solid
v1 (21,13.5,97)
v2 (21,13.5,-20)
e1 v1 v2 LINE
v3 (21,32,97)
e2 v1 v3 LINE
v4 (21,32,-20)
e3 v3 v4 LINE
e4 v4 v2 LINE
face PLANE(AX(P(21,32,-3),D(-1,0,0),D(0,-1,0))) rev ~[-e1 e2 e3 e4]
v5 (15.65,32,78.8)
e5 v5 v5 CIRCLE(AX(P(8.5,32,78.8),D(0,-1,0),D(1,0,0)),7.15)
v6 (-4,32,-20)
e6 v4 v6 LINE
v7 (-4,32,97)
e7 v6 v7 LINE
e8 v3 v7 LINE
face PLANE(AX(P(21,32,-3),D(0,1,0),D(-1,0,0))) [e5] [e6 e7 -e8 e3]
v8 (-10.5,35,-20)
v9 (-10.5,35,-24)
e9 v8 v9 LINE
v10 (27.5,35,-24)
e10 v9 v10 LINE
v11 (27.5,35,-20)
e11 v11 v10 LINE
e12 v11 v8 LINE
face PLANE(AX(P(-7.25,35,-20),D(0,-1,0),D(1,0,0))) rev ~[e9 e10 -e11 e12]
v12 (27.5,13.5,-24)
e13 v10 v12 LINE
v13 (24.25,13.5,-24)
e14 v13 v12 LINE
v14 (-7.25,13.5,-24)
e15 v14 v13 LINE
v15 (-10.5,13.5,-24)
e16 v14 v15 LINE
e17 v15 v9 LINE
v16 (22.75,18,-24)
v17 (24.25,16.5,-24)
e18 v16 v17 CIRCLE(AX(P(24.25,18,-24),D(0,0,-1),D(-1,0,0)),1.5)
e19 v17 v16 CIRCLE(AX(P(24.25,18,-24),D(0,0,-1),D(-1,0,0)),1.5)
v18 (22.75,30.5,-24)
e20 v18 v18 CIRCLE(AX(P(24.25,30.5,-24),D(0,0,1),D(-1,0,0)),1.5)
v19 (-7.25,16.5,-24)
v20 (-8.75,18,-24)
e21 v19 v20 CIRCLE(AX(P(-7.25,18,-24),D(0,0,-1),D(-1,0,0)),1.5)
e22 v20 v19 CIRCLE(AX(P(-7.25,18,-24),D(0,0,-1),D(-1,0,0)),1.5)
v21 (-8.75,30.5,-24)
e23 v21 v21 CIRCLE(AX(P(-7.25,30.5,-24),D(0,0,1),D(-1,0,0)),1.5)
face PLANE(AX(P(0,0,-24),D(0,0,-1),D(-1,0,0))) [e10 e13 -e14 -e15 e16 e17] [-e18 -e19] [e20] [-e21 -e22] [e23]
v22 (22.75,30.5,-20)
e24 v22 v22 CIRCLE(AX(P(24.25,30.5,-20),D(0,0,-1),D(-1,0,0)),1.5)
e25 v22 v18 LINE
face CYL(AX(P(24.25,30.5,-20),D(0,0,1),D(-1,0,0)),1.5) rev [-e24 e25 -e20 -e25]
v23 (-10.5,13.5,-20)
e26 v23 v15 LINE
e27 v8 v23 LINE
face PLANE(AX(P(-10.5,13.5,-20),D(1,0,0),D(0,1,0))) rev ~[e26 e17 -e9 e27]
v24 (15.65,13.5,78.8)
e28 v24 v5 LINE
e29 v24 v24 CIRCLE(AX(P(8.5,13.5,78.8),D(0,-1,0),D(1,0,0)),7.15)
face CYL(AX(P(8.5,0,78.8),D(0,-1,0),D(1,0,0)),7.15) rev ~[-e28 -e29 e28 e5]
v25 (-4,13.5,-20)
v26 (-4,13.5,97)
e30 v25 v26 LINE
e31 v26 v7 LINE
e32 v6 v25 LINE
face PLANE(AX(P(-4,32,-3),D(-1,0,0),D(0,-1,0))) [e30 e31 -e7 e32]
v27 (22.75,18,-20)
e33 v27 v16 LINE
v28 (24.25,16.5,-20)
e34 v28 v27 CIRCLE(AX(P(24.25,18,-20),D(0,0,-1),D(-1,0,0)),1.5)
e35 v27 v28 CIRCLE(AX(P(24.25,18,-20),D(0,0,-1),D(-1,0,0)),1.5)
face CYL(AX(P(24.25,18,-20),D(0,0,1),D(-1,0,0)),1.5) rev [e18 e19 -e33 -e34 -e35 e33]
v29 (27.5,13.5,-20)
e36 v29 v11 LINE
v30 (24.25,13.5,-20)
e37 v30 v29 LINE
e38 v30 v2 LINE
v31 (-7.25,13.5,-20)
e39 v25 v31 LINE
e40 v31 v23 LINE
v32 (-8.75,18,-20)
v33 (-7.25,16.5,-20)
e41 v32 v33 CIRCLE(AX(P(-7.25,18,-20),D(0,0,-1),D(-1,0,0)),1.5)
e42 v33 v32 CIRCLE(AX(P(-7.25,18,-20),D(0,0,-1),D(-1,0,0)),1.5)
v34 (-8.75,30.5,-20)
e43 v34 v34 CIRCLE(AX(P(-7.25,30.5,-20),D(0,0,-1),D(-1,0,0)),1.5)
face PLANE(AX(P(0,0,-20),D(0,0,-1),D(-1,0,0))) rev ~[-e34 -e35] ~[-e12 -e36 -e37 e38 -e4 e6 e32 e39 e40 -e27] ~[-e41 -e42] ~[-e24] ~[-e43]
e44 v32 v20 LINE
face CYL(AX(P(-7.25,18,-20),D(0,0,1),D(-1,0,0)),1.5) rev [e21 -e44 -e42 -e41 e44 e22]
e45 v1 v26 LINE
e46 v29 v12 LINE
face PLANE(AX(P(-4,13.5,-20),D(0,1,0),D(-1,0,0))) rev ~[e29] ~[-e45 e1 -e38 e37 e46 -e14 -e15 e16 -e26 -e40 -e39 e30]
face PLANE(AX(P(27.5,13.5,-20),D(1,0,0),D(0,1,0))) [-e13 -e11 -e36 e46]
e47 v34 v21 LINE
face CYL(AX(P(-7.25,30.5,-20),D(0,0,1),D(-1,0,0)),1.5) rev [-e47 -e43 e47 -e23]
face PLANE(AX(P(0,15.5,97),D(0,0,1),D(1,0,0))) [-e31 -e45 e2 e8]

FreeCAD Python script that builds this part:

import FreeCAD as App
import Part
import Sketcher
Q = App.Units.Quantity

doc = App.newDocument("Part")
body = doc.addObject("PartDesign::Body", "Body")

# Sketch on XY plane
sketch1 = doc.addObject("Sketcher::SketchObject", "Sketch")
body.addObject(sketch1)
sketch1.AttachmentSupport = (doc.XY_Plane, [""])
sketch1.MapMode = "FlatFace"
sketch1.addGeometry([
    Part.LineSegment(App.Vector(23, 36, 0), App.Vector(-6, 36, 0)),
    Part.LineSegment(App.Vector(-6, 36, 0), App.Vector(-6, -6, 0)),
    Part.LineSegment(App.Vector(-6, -6, 0), App.Vector(23, -6, 0)),
    Part.LineSegment(App.Vector(23, -6, 0), App.Vector(23, 36, 0)),
], False)
sketch1.addConstraint([
    Sketcher.Constraint("Coincident", 0, 2, 1, 1),
    Sketcher.Constraint("Coincident", 1, 2, 2, 1),
    Sketcher.Constraint("Coincident", 2, 2, 3, 1),
    Sketcher.Constraint("Coincident", 3, 2, 0, 1),
    Sketcher.Constraint("Horizontal", 0),
    Sketcher.Constraint("Vertical", 1),
    Sketcher.Constraint("Horizontal", 2),
    Sketcher.Constraint("Vertical", 3),
    Sketcher.Constraint("DistanceX", 0, 2, -1, 1, Q("6 mm")),
    Sketcher.Constraint("DistanceY", 1, 2, -1, 1, Q("6 mm")),
    Sketcher.Constraint("DistanceX", 0, 2, 0, 1, Q("29 mm")),
    Sketcher.Constraint("DistanceY", 1, 2, 1, 1, Q("42 mm")),
])
pad1 = doc.addObject("PartDesign::Pad", "Pad")
body.addObject(pad1)
pad1.Profile = sketch1
pad1.Length = 3
pad1.Reversed = True

# Sketch on XY plane
sketch2 = doc.addObject("Sketcher::SketchObject", "Sketch001")
body.addObject(sketch2)
sketch2.AttachmentSupport = (doc.XY_Plane, [""])
sketch2.MapMode = "FlatFace"
sketch2.addGeometry([
    Part.LineSegment(App.Vector(0, 30, 0), App.Vector(0, 0, 0)),
    Part.LineSegment(App.Vector(0, 0, 0), App.Vector(17, 0, 0)),
    Part.LineSegment(App.Vector(17, 0, 0), App.Vector(17, 30, 0)),
    Part.LineSegment(App.Vector(17, 30, 0), App.Vector(0, 30, 0)),
], False)
sketch2.addConstraint([
    Sketcher.Constraint("Coincident", 0, 2, 1, 1),
    Sketcher.Constraint("Coincident", 1, 2, 2, 1),
    Sketcher.Constraint("Coincident", 2, 2, 3, 1),
    Sketcher.Constraint("Coincident", 3, 2, 0, 1),
    Sketcher.Constraint("Vertical", 0),
    Sketcher.Constraint("Horizontal", 1),
    Sketcher.Constraint("Vertical", 2),
    Sketcher.Constraint("Horizontal", 3),
    Sketcher.Constraint("Coincident", 0, 2, -1, 1),
    Sketcher.Constraint("DistanceX", 1, 1, 1, 2, Q("17 mm")),
    Sketcher.Constraint("DistanceY", 0, 2, 0, 1, Q("30 mm")),
])
pad2 = doc.addObject("PartDesign::Pad", "Pad001")
body.addObject(pad2)
pad2.Profile = sketch2
pad2.Length = 90

# Sketch on XZ plane
sketch3 = doc.addObject("Sketcher::SketchObject", "Sketch002")
body.addObject(sketch3)
sketch3.AttachmentSupport = (doc.XZ_Plane, [""])
sketch3.MapMode = "FlatFace"
sketch3.addGeometry(Part.Circle(App.Vector(8.5, 78.8, 0), App.Vector(0, 0, 1), 7.15), False)
sketch3.addConstraint([
    Sketcher.Constraint("Diameter", 0, Q("14.3 mm")),
    Sketcher.Constraint("DistanceX", -1, 1, 0, 3, Q("8.5 mm")),
    Sketcher.Constraint("DistanceY", -1, 1, 0, 3, Q("78.8 mm")),
])
pocket1 = doc.addObject("PartDesign::Pocket", "Pocket")
body.addObject(pocket1)
pocket1.Profile = sketch3
pocket1.Length = 90

# Sketch on XZ plane
sketch4 = doc.addObject("Sketcher::SketchObject", "Sketch003")
body.addObject(sketch4)
sketch4.AttachmentSupport = (doc.XZ_Plane, [""])
sketch4.MapMode = "FlatFace"
sketch4.addGeometry([
    Part.LineSegment(App.Vector(0, 90, 0), App.Vector(0, 42, 0)),  # 0
    Part.LineSegment(App.Vector(0, 42, 0), App.Vector(17, 42, 0)),  # 1
    Part.LineSegment(App.Vector(17, 42, 0), App.Vector(17, 90, 0)),  # 2
    Part.LineSegment(App.Vector(17, 90, 0), App.Vector(0, 90, 0)),  # 3
    Part.Circle(App.Vector(8.5, 78.8, 0), App.Vector(0, 0, 1), 7.15),  # 4
], False)
sketch4.addConstraint([
    Sketcher.Constraint("Coincident", 0, 2, 1, 1),
    Sketcher.Constraint("Coincident", 1, 2, 2, 1),
    Sketcher.Constraint("Coincident", 2, 2, 3, 1),
    Sketcher.Constraint("Coincident", 3, 2, 0, 1),
    Sketcher.Constraint("Vertical", 0),
    Sketcher.Constraint("Horizontal", 1),
    Sketcher.Constraint("Vertical", 2),
    Sketcher.Constraint("Horizontal", 3),
    Sketcher.Constraint("PointOnObject", 0, 2, -2),
    Sketcher.Constraint("Diameter", 4, Q("14.3 mm")),
    Sketcher.Constraint("DistanceX", 1, 1, 1, 2, Q("17 mm")),
    Sketcher.Constraint("DistanceY", 0, 2, 0, 1, Q("48 mm")),
    Sketcher.Constraint("DistanceY", -1, 1, 0, 2, Q("42 mm")),
    Sketcher.Constraint("DistanceX", -1, 1, 4, 3, Q("8.5 mm")),
    Sketcher.Constraint("DistanceY", -1, 1, 4, 3, Q("78.8 mm")),
])
pocket2 = doc.addObject("PartDesign::Pocket", "Pocket001")
body.addObject(pocket2)
pocket2.Profile = sketch4
pocket2.Length = 15.5

# Sketch on XZ plane
sketch5 = doc.addObject("Sketcher::SketchObject", "Sketch004")
body.addObject(sketch5)
sketch5.AttachmentSupport = (doc.XZ_Plane, [""])
sketch5.MapMode = "FlatFace"
sketch5.addGeometry([
    Part.LineSegment(App.Vector(0, 97, 0), App.Vector(0, 90, 0)),
    Part.LineSegment(App.Vector(0, 90, 0), App.Vector(17, 90, 0)),
    Part.LineSegment(App.Vector(17, 90, 0), App.Vector(17, 97, 0)),
    Part.LineSegment(App.Vector(17, 97, 0), App.Vector(0, 97, 0)),
], False)
sketch5.addConstraint([
    Sketcher.Constraint("Coincident", 0, 2, 1, 1),
    Sketcher.Constraint("Coincident", 1, 2, 2, 1),
    Sketcher.Constraint("Coincident", 2, 2, 3, 1),
    Sketcher.Constraint("Coincident", 3, 2, 0, 1),
    Sketcher.Constraint("Vertical", 0),
    Sketcher.Constraint("Horizontal", 1),
    Sketcher.Constraint("Vertical", 2),
    Sketcher.Constraint("Horizontal", 3),
    Sketcher.Constraint("PointOnObject", 0, 2, -2),
    Sketcher.Constraint("DistanceY", 0, 2, 0, 1, Q("7 mm")),
    Sketcher.Constraint("DistanceX", 1, 1, 1, 2, Q("17 mm")),
    Sketcher.Constraint("DistanceY", -1, 1, 0, 2, Q("90 mm")),
])
pad3 = doc.addObject("PartDesign::Pad", "Pad002")
body.addObject(pad3)
pad3.Profile = sketch5
pad3.Length = 30
pad3.Reversed = True

# Sketch on XZ plane
sketch6 = doc.addObject("Sketcher::SketchObject", "Sketch005")
body.addObject(sketch6)
sketch6.AttachmentSupport = (doc.XZ_Plane, [""])
sketch6.MapMode = "FlatFace"
sketch6.addGeometry([
    Part.LineSegment(App.Vector(0, 97, 0), App.Vector(0, 90, 0)),
    Part.LineSegment(App.Vector(0, 90, 0), App.Vector(17, 90, 0)),
    Part.LineSegment(App.Vector(17, 90, 0), App.Vector(17, 97, 0)),
    Part.LineSegment(App.Vector(17, 97, 0), App.Vector(0, 97, 0)),
], False)
sketch6.addConstraint([
    Sketcher.Constraint("Coincident", 0, 2, 1, 1),
    Sketcher.Constraint("Coincident", 1, 2, 2, 1),
    Sketcher.Constraint("Coincident", 2, 2, 3, 1),
    Sketcher.Constraint("Coincident", 3, 2, 0, 1),
    Sketcher.Constraint("Vertical", 0),
    Sketcher.Constraint("Horizontal", 1),
    Sketcher.Constraint("Vertical", 2),
    Sketcher.Constraint("Horizontal", 3),
    Sketcher.Constraint("PointOnObject", 0, 2, -2),
    Sketcher.Constraint("DistanceY", 0, 2, 0, 1, Q("7 mm")),
    Sketcher.Constraint("DistanceX", 1, 1, 1, 2, Q("17 mm")),
    Sketcher.Constraint("DistanceY", -1, 1, 0, 2, Q("90 mm")),
])
pocket3 = doc.addObject("PartDesign::Pocket", "Pocket002")
body.addObject(pocket3)
pocket3.Profile = sketch6
pocket3.Length = 15.5

# Sketch on XY plane
sketch7 = doc.addObject("Sketcher::SketchObject", "Sketch006")
body.addObject(sketch7)
sketch7.AttachmentSupport = (doc.XY_Plane, [""])
sketch7.MapMode = "FlatFace"
sketch7.AttachmentOffset = App.Placement(App.Vector(0, 0, 97), App.Rotation())
sketch7.addGeometry([
    Part.LineSegment(App.Vector(19, 32, 0), App.Vector(-2, 32, 0)),
    Part.LineSegment(App.Vector(-2, 32, 0), App.Vector(-2, 13.5, 0)),
    Part.LineSegment(App.Vector(-2, 13.5, 0), App.Vector(19, 13.5, 0)),
    Part.LineSegment(App.Vector(19, 13.5, 0), App.Vector(19, 32, 0)),
], False)
sketch7.addConstraint([
    Sketcher.Constraint("Coincident", 0, 2, 1, 1),
    Sketcher.Constraint("Coincident", 1, 2, 2, 1),
    Sketcher.Constraint("Coincident", 2, 2, 3, 1),
    Sketcher.Constraint("Coincident", 3, 2, 0, 1),
    Sketcher.Constraint("Horizontal", 0),
    Sketcher.Constraint("Vertical", 1),
    Sketcher.Constraint("Horizontal", 2),
    Sketcher.Constraint("Vertical", 3),
    Sketcher.Constraint("DistanceX", 0, 2, -1, 1, Q("2 mm")),
    Sketcher.Constraint("DistanceX", 0, 2, 0, 1, Q("21 mm")),
    Sketcher.Constraint("DistanceY", 1, 2, 1, 1, Q("18.5 mm")),
    Sketcher.Constraint("DistanceY", -1, 1, 0, 2, Q("32 mm")),
])
pad4 = doc.addObject("PartDesign::Pad", "Pad003")
body.addObject(pad4)
pad4.Profile = sketch7
pad4.Length = 97.9375
pad4.Reversed = True

# Sketch on XY plane
sketch8 = doc.addObject("Sketcher::SketchObject", "Sketch007")
body.addObject(sketch8)
sketch8.AttachmentSupport = (doc.XY_Plane, [""])
sketch8.MapMode = "FlatFace"
sketch8.AttachmentOffset = App.Placement(App.Vector(0, 0, 42), App.Rotation())
sketch8.addGeometry([
    Part.LineSegment(App.Vector(17.0001, 0, 0), App.Vector(17, 13.5, 0)),
    Part.LineSegment(App.Vector(17, 13.5, 0), App.Vector(0, 13.5, 0)),
    Part.LineSegment(App.Vector(0, 13.5, 0), App.Vector(0, 0, 0)),
    Part.LineSegment(App.Vector(0, 0, 0), App.Vector(17.0001, 0, 0)),
], False)
sketch8.addConstraint([
    Sketcher.Constraint("Coincident", 0, 2, 1, 1),
    Sketcher.Constraint("Coincident", 1, 2, 2, 1),
    Sketcher.Constraint("Coincident", 2, 2, 3, 1),
    Sketcher.Constraint("Coincident", 3, 2, 0, 1),
    Sketcher.Constraint("Vertical", 0),
    Sketcher.Constraint("Horizontal", 1),
    Sketcher.Constraint("Vertical", 2),
    Sketcher.Constraint("Horizontal", 3),
    Sketcher.Constraint("Coincident", 2, 2, -1, 1),
    Sketcher.Constraint("DistanceX", 1, 2, 1, 1, Q("17 mm")),
    Sketcher.Constraint("DistanceY", 0, 1, 0, 2, Q("13.5 mm")),
])
pocket4 = doc.addObject("PartDesign::Pocket", "Pocket003")
body.addObject(pocket4)
pocket4.Profile = sketch8
pocket4.Length = 42

# Sketch on XZ plane
sketch9 = doc.addObject("Sketcher::SketchObject", "Sketch008")
body.addObject(sketch9)
sketch9.AttachmentSupport = (doc.XZ_Plane, [""])
sketch9.MapMode = "FlatFace"
sketch9.addGeometry(Part.Circle(App.Vector(8.5, 78.8, 0), App.Vector(0, 0, 1), 7.15), False)
sketch9.addConstraint([
    Sketcher.Constraint("Diameter", 0, Q("14.3 mm")),
    Sketcher.Constraint("DistanceX", -1, 1, 0, 3, Q("8.5 mm")),
    Sketcher.Constraint("DistanceY", -1, 1, 0, 3, Q("78.8 mm")),
])
pocket5 = doc.addObject("PartDesign::Pocket", "Pocket004")
body.addObject(pocket5)
pocket5.Profile = sketch9
pocket5.Length = 97.9375

# Sketch on XY plane
sketch10 = doc.addObject("Sketcher::SketchObject", "Sketch009")
body.addObject(sketch10)
sketch10.AttachmentSupport = (doc.XY_Plane, [""])
sketch10.MapMode = "FlatFace"
sketch10.AttachmentOffset = App.Placement(App.Vector(0, 0, -3), App.Rotation())
sketch10.addGeometry([
    Part.LineSegment(App.Vector(28.2805, 47.594, 0), App.Vector(28.2805, -15.4048, 0)),
    Part.LineSegment(App.Vector(28.2805, -15.4048, 0), App.Vector(-9.4268, -15.4048, 0)),
    Part.LineSegment(App.Vector(-9.4268, -15.4048, 0), App.Vector(-9.4268, 47.594, 0)),
    Part.LineSegment(App.Vector(-9.4268, 47.594, 0), App.Vector(28.2805, 47.594, 0)),
], False)
sketch10.addConstraint([
    Sketcher.Constraint("Coincident", 0, 2, 1, 1),
    Sketcher.Constraint("Coincident", 1, 2, 2, 1),
    Sketcher.Constraint("Coincident", 2, 2, 3, 1),
    Sketcher.Constraint("Coincident", 3, 2, 0, 1),
    Sketcher.Constraint("Vertical", 0),
    Sketcher.Constraint("Horizontal", 1),
    Sketcher.Constraint("Vertical", 2),
    Sketcher.Constraint("Horizontal", 3),
    Sketcher.Constraint("DistanceX", 1, 2, 1, 1, Q("37.7073 mm")),
    Sketcher.Constraint("DistanceY", 0, 2, 0, 1, Q("62.9988 mm")),
    Sketcher.Constraint("DistanceY", -1, 1, 2, 2, Q("47.594 mm")),
    Sketcher.Constraint("DistanceX", -1, 1, 0, 2, Q("28.2805 mm")),
])
pocket6 = doc.addObject("PartDesign::Pocket", "Pocket005")
body.addObject(pocket6)
pocket6.Profile = sketch10
pocket6.Length = 43
pocket6.Reversed = True

# Sketch on XY plane
sketch11 = doc.addObject("Sketcher::SketchObject", "Sketch010")
body.addObject(sketch11)
sketch11.AttachmentSupport = (doc.XY_Plane, [""])
sketch11.MapMode = "FlatFace"
sketch11.AttachmentOffset = App.Placement(App.Vector(0, 0, 40), App.Rotation())
sketch11.addGeometry([
    Part.LineSegment(App.Vector(19, 13.5, 0), App.Vector(-2, 13.5, 0)),
    Part.LineSegment(App.Vector(-2, 13.5, 0), App.Vector(-2, 32, 0)),
    Part.LineSegment(App.Vector(-2, 32, 0), App.Vector(19, 32, 0)),
    Part.LineSegment(App.Vector(19, 32, 0), App.Vector(19, 13.5, 0)),
], False)
sketch11.addConstraint([
    Sketcher.Constraint("Coincident", 0, 2, 1, 1),
    Sketcher.Constraint("Coincident", 1, 2, 2, 1),
    Sketcher.Constraint("Coincident", 2, 2, 3, 1),
    Sketcher.Constraint("Coincident", 3, 2, 0, 1),
    Sketcher.Constraint("Horizontal", 0),
    Sketcher.Constraint("Vertical", 1),
    Sketcher.Constraint("Horizontal", 2),
    Sketcher.Constraint("Vertical", 3),
    Sketcher.Constraint("DistanceX", 0, 2, 0, 1, Q("21 mm")),
    Sketcher.Constraint("DistanceY", 1, 1, 1, 2, Q("18.5 mm")),
    Sketcher.Constraint("DistanceX", 0, 2, -1, 1, Q("2 mm")),
    Sketcher.Constraint("DistanceY", -1, 1, 1, 2, Q("32 mm")),
])
pad5 = doc.addObject("PartDesign::Pad", "Pad004")
body.addObject(pad5)
pad5.Profile = sketch11
pad5.Length = 43
pad5.Reversed = True

# Sketch on XY plane
sketch12 = doc.addObject("Sketcher::SketchObject", "Sketch011")
body.addObject(sketch12)
sketch12.AttachmentSupport = (doc.XY_Plane, [""])
sketch12.MapMode = "FlatFace"
sketch12.AttachmentOffset = App.Placement(App.Vector(0, 0, 97), App.Rotation())
sketch12.addGeometry([
    Part.LineSegment(App.Vector(19, 32, 0), App.Vector(19, 13.5, 0)),  # 0
    Part.LineSegment(App.Vector(19, 13.5, 0), App.Vector(21, 13.5, 0)),  # 1
    Part.LineSegment(App.Vector(21, 13.5, 0), App.Vector(21, 32, 0)),  # 2
    Part.LineSegment(App.Vector(21, 32, 0), App.Vector(19, 32, 0)),  # 3
    Part.LineSegment(App.Vector(-4, 13.5, 0), App.Vector(-2, 13.5, 0)),  # 4
    Part.LineSegment(App.Vector(-2, 13.5, 0), App.Vector(-2, 32, 0)),  # 5
    Part.LineSegment(App.Vector(-2, 32, 0), App.Vector(-4, 32, 0)),  # 6
    Part.LineSegment(App.Vector(-4, 32, 0), App.Vector(-4, 13.5, 0)),  # 7
], False)
sketch12.addConstraint([
    Sketcher.Constraint("Coincident", 0, 2, 1, 1),
    Sketcher.Constraint("Coincident", 1, 2, 2, 1),
    Sketcher.Constraint("Coincident", 2, 2, 3, 1),
    Sketcher.Constraint("Coincident", 3, 2, 0, 1),
    Sketcher.Constraint("Coincident", 4, 2, 5, 1),
    Sketcher.Constraint("Coincident", 5, 2, 6, 1),
    Sketcher.Constraint("Coincident", 6, 2, 7, 1),
    Sketcher.Constraint("Coincident", 7, 2, 4, 1),
    Sketcher.Constraint("Vertical", 0),
    Sketcher.Constraint("Horizontal", 1),
    Sketcher.Constraint("Vertical", 2),
    Sketcher.Constraint("Horizontal", 3),
    Sketcher.Constraint("Horizontal", 4),
    Sketcher.Constraint("Vertical", 5),
    Sketcher.Constraint("Horizontal", 6),
    Sketcher.Constraint("Vertical", 7),
    Sketcher.Constraint("Horizontal", 1, 2, 4, 2),
    Sketcher.Constraint("Horizontal", 3, 2, 5, 2),
    Sketcher.Constraint("Equal", 3, 4),
    Sketcher.Constraint("DistanceX", 1, 1, 1, 2, Q("2 mm")),
    Sketcher.Constraint("DistanceX", 4, 2, -1, 1, Q("2 mm")),
    Sketcher.Constraint("DistanceY", 0, 2, 0, 1, Q("18.5 mm")),
    Sketcher.Constraint("DistanceX", -1, 1, 0, 2, Q("19 mm")),
    Sketcher.Constraint("DistanceY", -1, 1, 2, 2, Q("32 mm")),
])
pad6 = doc.addObject("PartDesign::Pad", "Pad005")
body.addObject(pad6)
pad6.Profile = sketch12
pad6.Length = 100
pad6.Reversed = True

# Sketch on XY plane
sketch13 = doc.addObject("Sketcher::SketchObject", "Sketch012")
body.addObject(sketch13)
sketch13.AttachmentSupport = (doc.XY_Plane, [""])
sketch13.MapMode = "FlatFace"
sketch13.AttachmentOffset = App.Placement(App.Vector(0, 0, -3), App.Rotation())
sketch13.addGeometry([
    Part.LineSegment(App.Vector(-4, 32, 0), App.Vector(21, 32, 0)),
    Part.LineSegment(App.Vector(21, 32, 0), App.Vector(21, 13.5, 0)),
    Part.LineSegment(App.Vector(21, 13.5, 0), App.Vector(-4, 13.5, 0)),
    Part.LineSegment(App.Vector(-4, 13.5, 0), App.Vector(-4, 32, 0)),
], False)
sketch13.addConstraint([
    Sketcher.Constraint("Coincident", 0, 2, 1, 1),
    Sketcher.Constraint("Coincident", 1, 2, 2, 1),
    Sketcher.Constraint("Coincident", 2, 2, 3, 1),
    Sketcher.Constraint("Coincident", 3, 2, 0, 1),
    Sketcher.Constraint("Horizontal", 0),
    Sketcher.Constraint("Vertical", 1),
    Sketcher.Constraint("Horizontal", 2),
    Sketcher.Constraint("Vertical", 3),
    Sketcher.Constraint("DistanceX", 0, 1, 0, 2, Q("25 mm")),
    Sketcher.Constraint("DistanceY", 1, 2, 1, 1, Q("18.5 mm")),
    Sketcher.Constraint("DistanceX", -1, 1, 0, 2, Q("21 mm")),
    Sketcher.Constraint("DistanceY", -1, 1, 0, 2, Q("32 mm")),
])
pad7 = doc.addObject("PartDesign::Pad", "Pad006")
body.addObject(pad7)
pad7.Profile = sketch13
pad7.Length = 17
pad7.Reversed = True

# Sketch on XY plane
sketch14 = doc.addObject("Sketcher::SketchObject", "Sketch013")
body.addObject(sketch14)
sketch14.AttachmentSupport = (doc.XY_Plane, [""])
sketch14.MapMode = "FlatFace"
sketch14.AttachmentOffset = App.Placement(App.Vector(0, 0, -20), App.Rotation())
sketch14.addGeometry([
    Part.LineSegment(App.Vector(-10.5, 13.5, 0), App.Vector(-10.5, 35, 0)),  # 0
    Part.LineSegment(App.Vector(-10.5, 35, 0), App.Vector(27.5, 35, 0)),  # 1
    Part.LineSegment(App.Vector(27.5, 35, 0), App.Vector(27.5, 13.5, 0)),  # 2
    Part.LineSegment(App.Vector(27.5, 13.5, 0), App.Vector(24.25, 13.5, 0)),  # 3
    Part.LineSegment(App.Vector(24.25, 13.5, 0), App.Vector(-7.25, 13.5, 0)),  # 4
    Part.LineSegment(App.Vector(-7.25, 13.5, 0), App.Vector(-10.5, 13.5, 0)),  # 5
    Part.Circle(App.Vector(-7.25, 18, 0), App.Vector(0, 0, 1), 1.5),  # 6
    Part.Circle(App.Vector(-7.25, 30.5, 0), App.Vector(0, 0, 1), 1.5),  # 7
    Part.Circle(App.Vector(24.25, 30.5, 0), App.Vector(0, 0, 1), 1.5),  # 8
    Part.Circle(App.Vector(24.25, 18, 0), App.Vector(0, 0, 1), 1.5),  # 9
], False)
sketch14.addConstraint([
    Sketcher.Constraint("Coincident", 0, 2, 1, 1),
    Sketcher.Constraint("Coincident", 1, 2, 2, 1),
    Sketcher.Constraint("Coincident", 2, 2, 3, 1),
    Sketcher.Constraint("Coincident", 3, 2, 4, 1),
    Sketcher.Constraint("Coincident", 4, 2, 5, 1),
    Sketcher.Constraint("Coincident", 5, 2, 0, 1),
    Sketcher.Constraint("Vertical", 0),
    Sketcher.Constraint("Horizontal", 1),
    Sketcher.Constraint("Vertical", 2),
    Sketcher.Constraint("Horizontal", 3),
    Sketcher.Constraint("Horizontal", 4),
    Sketcher.Constraint("Horizontal", 5),
    Sketcher.Constraint("Equal", 6, 7),
    Sketcher.Constraint("Equal", 7, 8),
    Sketcher.Constraint("Equal", 8, 9),
    Sketcher.Constraint("Horizontal", 7, 3, 8, 3),
    Sketcher.Constraint("Horizontal", 6, 3, 9, 3),
    Sketcher.Constraint("Vertical", 6, 3, 7, 3),
    Sketcher.Constraint("Vertical", 8, 3, 9, 3),
    Sketcher.Constraint("Vertical", 9, 3, 3, 2),
    Sketcher.Constraint("Vertical", 7, 3, 4, 2),
    Sketcher.Constraint("Equal", 3, 5),
    Sketcher.Constraint("Diameter", 6, Q("3 mm")),
    Sketcher.Constraint("DistanceY", 7, 3, 0, 2, Q("4.5 mm")),
    Sketcher.Constraint("DistanceY", 2, 2, 9, 3, Q("4.5 mm")),
    Sketcher.Constraint("DistanceX", 1, 1, 1, 2, Q("38 mm")),
    Sketcher.Constraint("DistanceX", 4, 2, 4, 1, Q("31.5 mm")),
    Sketcher.Constraint("DistanceY", 0, 1, 0, 2, Q("21.5 mm")),
    Sketcher.Constraint("DistanceY", -1, 1, 6, 3, Q("18 mm")),
    Sketcher.Constraint("DistanceX", 0, 2, -1, 1, Q("10.5 mm")),
])
pad8 = doc.addObject("PartDesign::Pad", "Pad007")
body.addObject(pad8)
pad8.Profile = sketch14
pad8.Length = 4
pad8.Reversed = True

doc.recompute()
